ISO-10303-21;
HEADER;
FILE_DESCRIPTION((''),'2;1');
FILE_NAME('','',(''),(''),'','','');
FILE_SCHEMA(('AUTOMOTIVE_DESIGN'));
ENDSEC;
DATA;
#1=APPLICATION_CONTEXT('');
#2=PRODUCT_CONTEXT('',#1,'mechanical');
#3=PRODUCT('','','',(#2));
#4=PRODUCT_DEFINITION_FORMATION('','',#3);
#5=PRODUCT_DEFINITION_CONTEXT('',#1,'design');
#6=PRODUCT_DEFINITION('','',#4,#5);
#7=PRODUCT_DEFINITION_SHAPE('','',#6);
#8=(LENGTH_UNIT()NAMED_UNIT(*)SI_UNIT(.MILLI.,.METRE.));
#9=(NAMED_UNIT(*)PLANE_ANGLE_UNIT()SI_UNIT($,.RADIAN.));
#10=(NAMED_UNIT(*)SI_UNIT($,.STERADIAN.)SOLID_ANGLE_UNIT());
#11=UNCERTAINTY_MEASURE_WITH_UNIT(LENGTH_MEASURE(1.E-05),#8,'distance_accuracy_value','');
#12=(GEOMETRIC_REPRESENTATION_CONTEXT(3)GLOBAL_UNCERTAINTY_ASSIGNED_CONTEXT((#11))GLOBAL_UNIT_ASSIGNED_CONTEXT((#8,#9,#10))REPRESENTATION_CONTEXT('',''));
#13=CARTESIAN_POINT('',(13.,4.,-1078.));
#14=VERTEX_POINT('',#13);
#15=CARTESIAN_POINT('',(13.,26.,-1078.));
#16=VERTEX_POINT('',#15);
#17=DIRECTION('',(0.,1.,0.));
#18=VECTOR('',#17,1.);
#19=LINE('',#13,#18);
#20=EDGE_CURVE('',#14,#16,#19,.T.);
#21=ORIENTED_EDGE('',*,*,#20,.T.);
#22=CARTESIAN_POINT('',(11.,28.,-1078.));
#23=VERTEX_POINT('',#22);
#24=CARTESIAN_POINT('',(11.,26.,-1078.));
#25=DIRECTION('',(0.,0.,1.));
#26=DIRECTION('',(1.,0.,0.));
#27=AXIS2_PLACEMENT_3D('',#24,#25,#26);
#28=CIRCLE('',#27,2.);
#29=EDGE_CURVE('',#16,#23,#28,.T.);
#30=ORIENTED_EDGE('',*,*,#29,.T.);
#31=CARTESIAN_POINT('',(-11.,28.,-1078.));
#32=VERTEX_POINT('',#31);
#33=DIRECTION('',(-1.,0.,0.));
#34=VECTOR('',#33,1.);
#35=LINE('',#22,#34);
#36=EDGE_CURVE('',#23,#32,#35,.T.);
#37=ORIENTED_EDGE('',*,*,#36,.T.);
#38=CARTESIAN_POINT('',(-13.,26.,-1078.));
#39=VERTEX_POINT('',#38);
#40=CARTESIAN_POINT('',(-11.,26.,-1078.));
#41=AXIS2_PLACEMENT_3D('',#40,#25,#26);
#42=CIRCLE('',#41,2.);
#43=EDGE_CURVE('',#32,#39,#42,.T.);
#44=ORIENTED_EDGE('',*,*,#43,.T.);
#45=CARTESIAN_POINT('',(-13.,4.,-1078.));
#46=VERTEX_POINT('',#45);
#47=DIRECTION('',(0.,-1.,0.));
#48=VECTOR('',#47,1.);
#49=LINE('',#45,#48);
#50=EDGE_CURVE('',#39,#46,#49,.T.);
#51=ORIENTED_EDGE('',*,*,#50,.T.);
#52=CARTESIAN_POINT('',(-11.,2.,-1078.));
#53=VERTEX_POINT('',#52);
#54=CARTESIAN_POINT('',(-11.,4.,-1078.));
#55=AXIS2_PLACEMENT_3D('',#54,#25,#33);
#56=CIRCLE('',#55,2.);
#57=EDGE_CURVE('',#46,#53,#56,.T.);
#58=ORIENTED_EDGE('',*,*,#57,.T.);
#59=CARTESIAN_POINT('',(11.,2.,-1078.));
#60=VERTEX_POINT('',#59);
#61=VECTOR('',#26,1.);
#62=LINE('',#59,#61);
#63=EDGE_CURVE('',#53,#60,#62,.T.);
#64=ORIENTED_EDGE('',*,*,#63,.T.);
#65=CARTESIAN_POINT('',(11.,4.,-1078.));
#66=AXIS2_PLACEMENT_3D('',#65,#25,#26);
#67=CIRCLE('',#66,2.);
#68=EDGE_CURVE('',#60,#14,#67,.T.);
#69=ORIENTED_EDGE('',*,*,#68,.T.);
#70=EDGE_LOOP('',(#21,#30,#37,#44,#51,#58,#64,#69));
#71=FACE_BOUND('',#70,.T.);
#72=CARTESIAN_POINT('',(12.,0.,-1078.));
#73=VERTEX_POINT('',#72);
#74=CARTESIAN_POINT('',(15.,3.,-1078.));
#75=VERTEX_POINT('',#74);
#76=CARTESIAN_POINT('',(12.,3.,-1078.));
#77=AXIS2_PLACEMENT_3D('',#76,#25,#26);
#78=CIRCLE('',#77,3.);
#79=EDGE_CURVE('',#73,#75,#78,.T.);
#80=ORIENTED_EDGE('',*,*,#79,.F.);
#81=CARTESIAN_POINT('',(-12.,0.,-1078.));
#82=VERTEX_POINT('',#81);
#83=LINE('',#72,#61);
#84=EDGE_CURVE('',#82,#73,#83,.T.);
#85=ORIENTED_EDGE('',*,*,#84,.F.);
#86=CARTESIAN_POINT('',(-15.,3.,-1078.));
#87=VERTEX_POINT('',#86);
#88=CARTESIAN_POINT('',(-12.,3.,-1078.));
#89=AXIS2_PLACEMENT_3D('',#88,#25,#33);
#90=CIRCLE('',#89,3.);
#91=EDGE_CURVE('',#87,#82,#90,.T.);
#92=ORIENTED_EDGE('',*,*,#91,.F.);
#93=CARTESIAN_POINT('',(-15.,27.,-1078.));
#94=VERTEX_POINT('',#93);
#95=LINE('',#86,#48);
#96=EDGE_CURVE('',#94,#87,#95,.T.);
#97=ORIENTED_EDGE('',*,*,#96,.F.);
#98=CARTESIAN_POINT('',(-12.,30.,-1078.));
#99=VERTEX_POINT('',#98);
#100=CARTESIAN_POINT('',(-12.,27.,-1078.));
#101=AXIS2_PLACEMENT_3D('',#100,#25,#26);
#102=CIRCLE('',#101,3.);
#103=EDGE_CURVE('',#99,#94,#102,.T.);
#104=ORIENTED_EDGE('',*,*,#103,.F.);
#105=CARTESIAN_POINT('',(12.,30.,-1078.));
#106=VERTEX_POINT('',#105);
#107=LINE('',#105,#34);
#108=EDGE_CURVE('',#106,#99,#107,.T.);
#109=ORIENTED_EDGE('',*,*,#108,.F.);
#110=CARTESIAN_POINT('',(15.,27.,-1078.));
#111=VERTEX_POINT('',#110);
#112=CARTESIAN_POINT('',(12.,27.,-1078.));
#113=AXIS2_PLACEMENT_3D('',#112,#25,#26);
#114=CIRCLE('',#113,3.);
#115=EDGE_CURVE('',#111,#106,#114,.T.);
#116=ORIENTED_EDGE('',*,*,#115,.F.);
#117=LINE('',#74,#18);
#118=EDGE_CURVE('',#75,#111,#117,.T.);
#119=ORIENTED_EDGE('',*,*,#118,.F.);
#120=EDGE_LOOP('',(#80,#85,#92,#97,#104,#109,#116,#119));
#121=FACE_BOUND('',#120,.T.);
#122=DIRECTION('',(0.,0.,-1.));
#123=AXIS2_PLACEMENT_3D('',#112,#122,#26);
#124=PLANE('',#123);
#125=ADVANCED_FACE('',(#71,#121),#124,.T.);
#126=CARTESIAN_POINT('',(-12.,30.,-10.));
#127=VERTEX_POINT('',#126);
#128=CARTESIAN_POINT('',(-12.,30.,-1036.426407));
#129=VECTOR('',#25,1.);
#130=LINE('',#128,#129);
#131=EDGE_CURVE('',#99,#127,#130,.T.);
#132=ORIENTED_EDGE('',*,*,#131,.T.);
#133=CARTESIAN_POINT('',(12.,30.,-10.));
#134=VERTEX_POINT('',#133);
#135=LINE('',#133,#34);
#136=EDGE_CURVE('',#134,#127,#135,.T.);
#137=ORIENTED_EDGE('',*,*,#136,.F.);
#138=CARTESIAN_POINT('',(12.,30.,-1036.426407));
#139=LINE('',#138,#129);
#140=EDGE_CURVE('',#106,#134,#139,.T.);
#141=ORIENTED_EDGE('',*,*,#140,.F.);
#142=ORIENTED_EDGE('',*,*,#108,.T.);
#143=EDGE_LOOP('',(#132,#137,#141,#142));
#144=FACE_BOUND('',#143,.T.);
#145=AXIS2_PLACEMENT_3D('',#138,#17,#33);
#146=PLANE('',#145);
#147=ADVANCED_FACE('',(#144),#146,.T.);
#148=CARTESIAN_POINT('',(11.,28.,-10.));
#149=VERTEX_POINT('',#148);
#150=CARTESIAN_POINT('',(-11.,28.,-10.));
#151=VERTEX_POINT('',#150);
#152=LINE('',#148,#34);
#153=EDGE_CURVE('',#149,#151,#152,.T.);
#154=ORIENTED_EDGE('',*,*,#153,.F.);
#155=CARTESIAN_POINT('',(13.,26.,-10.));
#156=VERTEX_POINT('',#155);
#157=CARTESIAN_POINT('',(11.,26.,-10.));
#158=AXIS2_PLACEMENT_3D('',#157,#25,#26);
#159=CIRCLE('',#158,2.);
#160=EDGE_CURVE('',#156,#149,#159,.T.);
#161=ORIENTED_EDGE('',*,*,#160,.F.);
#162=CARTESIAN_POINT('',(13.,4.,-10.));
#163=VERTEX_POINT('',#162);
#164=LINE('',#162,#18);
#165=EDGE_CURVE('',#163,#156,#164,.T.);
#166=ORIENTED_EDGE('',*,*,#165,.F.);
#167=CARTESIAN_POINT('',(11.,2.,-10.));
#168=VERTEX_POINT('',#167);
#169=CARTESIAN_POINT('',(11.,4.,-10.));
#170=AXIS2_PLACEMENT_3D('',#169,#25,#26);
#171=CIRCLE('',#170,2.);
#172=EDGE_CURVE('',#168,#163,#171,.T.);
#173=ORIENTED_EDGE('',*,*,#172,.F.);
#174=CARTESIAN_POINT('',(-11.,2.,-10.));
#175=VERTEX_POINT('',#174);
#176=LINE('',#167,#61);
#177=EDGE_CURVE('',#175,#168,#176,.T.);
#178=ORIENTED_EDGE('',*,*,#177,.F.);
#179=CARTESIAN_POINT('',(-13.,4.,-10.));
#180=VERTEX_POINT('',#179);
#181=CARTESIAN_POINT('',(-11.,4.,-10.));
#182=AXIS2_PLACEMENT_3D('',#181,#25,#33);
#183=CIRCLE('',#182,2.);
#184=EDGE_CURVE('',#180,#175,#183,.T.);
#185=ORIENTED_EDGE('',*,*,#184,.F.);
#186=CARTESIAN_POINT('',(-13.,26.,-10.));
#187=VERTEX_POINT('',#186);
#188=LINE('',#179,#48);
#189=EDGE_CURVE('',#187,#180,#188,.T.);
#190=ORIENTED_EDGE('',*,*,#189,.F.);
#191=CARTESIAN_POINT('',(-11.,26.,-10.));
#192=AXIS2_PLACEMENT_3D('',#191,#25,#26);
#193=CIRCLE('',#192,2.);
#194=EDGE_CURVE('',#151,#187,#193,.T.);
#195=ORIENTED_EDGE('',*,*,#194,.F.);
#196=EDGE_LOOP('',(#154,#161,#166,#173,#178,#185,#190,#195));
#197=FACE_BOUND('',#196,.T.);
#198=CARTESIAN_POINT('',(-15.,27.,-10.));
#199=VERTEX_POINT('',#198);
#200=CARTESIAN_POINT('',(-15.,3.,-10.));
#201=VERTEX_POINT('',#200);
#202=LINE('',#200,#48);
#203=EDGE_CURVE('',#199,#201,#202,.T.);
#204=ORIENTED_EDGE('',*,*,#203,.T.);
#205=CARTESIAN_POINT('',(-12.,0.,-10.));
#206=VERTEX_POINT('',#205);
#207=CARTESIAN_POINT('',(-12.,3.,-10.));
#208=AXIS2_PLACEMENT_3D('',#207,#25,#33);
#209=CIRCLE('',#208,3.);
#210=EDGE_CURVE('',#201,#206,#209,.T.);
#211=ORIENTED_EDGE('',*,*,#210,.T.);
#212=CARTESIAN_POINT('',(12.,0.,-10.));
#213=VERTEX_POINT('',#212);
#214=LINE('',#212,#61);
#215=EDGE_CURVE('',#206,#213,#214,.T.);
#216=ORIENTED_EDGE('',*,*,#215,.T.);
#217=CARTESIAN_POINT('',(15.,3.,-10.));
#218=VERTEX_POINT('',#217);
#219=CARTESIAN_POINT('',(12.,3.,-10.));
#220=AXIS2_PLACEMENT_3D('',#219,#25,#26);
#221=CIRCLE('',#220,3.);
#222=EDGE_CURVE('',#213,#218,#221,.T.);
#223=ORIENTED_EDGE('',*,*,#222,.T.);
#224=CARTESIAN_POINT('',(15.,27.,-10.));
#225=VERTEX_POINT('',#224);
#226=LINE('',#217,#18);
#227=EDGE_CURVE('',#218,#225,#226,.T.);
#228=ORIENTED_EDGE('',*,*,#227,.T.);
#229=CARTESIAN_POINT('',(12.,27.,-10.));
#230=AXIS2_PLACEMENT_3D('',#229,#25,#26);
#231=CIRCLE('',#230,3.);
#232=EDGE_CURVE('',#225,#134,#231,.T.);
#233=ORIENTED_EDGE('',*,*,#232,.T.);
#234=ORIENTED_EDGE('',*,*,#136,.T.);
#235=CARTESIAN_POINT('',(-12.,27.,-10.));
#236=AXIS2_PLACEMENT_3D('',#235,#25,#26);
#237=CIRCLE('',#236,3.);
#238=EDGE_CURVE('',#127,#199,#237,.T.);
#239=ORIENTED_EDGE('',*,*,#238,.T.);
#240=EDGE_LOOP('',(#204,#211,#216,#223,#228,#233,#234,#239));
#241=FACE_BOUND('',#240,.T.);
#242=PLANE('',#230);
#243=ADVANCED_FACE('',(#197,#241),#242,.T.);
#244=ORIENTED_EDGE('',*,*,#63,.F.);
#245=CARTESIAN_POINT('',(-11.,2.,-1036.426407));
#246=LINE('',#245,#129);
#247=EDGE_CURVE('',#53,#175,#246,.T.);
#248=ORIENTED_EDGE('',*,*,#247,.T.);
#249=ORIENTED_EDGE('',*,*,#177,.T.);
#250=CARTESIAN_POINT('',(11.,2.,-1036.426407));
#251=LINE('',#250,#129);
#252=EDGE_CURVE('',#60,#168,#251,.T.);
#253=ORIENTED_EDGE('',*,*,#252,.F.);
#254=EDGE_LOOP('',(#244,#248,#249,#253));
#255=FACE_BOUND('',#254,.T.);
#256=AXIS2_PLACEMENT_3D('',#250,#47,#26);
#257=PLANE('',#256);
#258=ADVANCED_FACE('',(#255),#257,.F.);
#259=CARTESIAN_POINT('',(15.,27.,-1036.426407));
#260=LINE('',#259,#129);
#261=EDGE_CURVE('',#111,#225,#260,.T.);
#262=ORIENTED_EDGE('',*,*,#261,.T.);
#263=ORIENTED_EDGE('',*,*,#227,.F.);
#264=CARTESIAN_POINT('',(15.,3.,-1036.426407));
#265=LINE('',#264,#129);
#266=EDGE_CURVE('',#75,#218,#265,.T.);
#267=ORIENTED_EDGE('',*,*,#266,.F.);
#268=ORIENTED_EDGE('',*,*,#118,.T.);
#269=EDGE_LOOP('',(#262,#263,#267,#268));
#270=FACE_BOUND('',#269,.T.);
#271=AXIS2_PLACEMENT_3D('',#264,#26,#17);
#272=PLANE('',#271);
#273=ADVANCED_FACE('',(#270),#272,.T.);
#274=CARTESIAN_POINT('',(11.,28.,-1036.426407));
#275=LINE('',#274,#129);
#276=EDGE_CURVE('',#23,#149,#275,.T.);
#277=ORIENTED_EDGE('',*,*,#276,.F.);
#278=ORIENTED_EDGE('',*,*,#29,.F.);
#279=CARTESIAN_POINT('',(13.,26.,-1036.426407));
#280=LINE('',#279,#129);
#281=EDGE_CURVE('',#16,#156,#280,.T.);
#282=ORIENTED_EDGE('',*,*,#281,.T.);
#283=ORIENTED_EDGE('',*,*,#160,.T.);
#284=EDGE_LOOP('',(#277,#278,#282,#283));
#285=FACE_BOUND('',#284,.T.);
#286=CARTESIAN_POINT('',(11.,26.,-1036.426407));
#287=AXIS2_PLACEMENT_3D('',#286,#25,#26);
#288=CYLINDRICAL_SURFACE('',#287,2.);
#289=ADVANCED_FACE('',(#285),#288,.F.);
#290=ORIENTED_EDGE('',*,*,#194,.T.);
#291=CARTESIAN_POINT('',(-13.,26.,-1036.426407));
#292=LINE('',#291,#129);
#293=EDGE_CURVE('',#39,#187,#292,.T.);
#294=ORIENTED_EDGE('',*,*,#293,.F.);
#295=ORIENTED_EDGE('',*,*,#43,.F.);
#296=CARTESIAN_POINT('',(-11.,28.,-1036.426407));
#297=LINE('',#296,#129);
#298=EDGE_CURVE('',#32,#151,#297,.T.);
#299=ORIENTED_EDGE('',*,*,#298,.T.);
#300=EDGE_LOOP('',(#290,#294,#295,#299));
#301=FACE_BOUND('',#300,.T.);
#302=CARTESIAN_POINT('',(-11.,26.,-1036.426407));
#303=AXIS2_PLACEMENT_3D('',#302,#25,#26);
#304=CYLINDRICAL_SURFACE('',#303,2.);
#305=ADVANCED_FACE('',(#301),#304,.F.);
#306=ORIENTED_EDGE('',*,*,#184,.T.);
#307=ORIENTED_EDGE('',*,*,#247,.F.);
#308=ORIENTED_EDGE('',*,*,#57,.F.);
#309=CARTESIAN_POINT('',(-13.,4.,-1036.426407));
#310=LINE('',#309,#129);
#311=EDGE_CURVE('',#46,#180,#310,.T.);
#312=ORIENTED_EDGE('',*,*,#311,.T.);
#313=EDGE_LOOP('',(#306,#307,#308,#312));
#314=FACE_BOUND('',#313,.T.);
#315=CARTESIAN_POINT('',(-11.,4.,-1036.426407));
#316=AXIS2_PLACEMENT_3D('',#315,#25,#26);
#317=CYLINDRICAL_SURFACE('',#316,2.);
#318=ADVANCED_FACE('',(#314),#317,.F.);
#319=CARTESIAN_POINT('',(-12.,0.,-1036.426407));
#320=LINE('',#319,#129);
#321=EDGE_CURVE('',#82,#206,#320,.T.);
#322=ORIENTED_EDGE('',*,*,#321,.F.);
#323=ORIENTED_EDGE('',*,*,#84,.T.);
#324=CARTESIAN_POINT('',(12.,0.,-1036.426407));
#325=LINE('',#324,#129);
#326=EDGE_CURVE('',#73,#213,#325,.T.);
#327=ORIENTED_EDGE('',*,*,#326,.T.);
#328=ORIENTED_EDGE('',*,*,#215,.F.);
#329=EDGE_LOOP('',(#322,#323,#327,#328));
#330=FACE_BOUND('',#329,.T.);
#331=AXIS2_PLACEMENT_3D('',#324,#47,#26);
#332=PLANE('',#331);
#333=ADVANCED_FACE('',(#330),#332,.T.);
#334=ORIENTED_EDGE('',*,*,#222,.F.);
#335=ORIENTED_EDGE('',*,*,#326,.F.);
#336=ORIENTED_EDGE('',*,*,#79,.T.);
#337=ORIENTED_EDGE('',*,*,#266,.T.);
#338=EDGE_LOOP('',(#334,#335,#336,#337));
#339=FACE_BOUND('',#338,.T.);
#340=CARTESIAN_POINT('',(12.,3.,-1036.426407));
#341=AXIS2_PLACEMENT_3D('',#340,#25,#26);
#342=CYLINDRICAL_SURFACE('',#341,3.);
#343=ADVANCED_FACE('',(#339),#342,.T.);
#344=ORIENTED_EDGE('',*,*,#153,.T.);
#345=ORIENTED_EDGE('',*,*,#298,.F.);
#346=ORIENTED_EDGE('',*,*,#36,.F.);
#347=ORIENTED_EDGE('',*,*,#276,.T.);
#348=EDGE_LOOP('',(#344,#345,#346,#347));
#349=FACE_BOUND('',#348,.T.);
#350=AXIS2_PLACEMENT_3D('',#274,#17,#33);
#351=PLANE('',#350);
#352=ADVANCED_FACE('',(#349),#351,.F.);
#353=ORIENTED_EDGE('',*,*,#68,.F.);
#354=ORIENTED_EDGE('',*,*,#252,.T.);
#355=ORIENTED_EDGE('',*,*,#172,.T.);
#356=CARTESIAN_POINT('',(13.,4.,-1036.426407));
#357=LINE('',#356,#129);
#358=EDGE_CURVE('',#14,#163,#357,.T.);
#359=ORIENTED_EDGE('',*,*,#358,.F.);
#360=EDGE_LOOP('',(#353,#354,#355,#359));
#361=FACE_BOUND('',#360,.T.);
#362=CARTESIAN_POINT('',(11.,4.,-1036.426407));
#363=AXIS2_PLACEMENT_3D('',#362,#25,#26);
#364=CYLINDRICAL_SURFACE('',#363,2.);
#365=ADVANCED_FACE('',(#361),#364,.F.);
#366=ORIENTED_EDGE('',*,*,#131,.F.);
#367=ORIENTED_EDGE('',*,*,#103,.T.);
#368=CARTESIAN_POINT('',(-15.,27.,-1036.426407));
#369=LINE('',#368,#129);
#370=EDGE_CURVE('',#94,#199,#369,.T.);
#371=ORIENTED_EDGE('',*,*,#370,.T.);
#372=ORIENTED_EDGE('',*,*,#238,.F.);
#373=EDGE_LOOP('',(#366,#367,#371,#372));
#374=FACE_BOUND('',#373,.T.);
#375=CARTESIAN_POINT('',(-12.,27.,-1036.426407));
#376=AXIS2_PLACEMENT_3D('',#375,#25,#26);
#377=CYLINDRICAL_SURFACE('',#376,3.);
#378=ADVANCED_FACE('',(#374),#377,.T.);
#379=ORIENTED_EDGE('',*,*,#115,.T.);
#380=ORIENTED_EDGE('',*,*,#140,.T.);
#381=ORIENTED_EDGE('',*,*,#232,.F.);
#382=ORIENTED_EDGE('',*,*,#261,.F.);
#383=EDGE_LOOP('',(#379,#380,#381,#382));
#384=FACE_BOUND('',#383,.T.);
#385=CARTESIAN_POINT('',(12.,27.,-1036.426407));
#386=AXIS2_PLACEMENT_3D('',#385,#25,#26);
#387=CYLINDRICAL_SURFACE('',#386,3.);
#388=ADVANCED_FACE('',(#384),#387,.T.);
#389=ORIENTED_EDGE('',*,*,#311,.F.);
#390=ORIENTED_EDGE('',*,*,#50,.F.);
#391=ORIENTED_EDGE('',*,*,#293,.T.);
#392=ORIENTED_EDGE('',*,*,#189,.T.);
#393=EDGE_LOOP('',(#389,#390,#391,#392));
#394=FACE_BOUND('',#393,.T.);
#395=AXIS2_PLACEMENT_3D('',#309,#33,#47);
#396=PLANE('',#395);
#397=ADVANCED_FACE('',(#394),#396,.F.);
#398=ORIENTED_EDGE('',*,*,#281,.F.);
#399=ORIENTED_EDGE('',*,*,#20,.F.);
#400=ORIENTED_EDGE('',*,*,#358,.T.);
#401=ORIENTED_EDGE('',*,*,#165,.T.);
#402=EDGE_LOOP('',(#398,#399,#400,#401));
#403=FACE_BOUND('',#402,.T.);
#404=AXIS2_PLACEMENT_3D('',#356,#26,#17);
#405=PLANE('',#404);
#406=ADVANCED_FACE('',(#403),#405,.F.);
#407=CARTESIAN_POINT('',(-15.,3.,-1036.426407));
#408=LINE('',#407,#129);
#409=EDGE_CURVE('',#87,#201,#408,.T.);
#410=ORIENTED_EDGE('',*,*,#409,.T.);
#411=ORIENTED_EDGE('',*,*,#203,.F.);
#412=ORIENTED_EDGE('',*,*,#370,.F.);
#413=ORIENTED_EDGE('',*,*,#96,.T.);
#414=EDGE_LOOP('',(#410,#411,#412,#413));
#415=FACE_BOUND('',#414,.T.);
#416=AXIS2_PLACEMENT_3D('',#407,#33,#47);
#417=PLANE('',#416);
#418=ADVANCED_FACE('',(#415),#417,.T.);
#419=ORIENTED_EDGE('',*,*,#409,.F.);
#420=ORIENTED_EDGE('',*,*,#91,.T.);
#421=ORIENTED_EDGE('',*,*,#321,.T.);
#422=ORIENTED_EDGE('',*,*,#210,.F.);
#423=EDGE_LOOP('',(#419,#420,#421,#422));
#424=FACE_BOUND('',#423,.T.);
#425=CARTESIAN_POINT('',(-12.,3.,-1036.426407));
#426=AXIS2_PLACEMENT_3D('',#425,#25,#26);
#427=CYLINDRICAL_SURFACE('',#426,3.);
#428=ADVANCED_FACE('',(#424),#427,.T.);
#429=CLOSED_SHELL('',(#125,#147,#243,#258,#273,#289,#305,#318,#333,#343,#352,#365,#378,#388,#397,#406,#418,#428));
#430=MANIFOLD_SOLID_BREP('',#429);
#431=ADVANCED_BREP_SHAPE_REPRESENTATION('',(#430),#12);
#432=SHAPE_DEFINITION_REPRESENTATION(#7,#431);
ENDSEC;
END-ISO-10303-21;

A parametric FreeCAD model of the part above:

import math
import FreeCAD as App
import Part
import Sketcher
from FreeCAD import Vector
Q = App.Units.Quantity

doc = App.newDocument("Part")
body = doc.addObject("PartDesign::Body", "Body")

# Sketch on XY plane
sketch1 = body.newObject("Sketcher::SketchObject", "Sketch")
sketch1.AttachmentSupport = (doc.getObject("XY_Plane"), [""])
sketch1.MapMode = "FlatFace"
sketch1.AttachmentOffset = App.Placement(Vector(0, 0, -10), App.Rotation())
sketch1.addGeometry([
    Part.LineSegment(Vector(-12, 0, 0), Vector(12, 0, 0)),  # 0
    Part.ArcOfCircle(Part.Circle(Vector(12, 3, 0), Vector(0, 0, 1), 3), math.radians(-90), math.radians(0)),  # 1
    Part.LineSegment(Vector(15, 3, 0), Vector(15, 27, 0)),  # 2
    Part.ArcOfCircle(Part.Circle(Vector(12, 27, 0), Vector(0, 0, 1), 3), math.radians(0), math.radians(90)),  # 3
    Part.LineSegment(Vector(12, 30, 0), Vector(-12, 30, 0)),  # 4
    Part.ArcOfCircle(Part.Circle(Vector(-12, 27, 0), Vector(0, 0, 1), 3), math.radians(90), math.radians(180)),  # 5
    Part.LineSegment(Vector(-15, 27, 0), Vector(-15, 3, 0)),  # 6
    Part.ArcOfCircle(Part.Circle(Vector(-12, 3, 0), Vector(0, 0, 1), 3), math.radians(180), math.radians(270)),  # 7
    Part.LineSegment(Vector(11, 2, 0), Vector(-11, 2, 0)),  # 8
    Part.ArcOfCircle(Part.Circle(Vector(-11, 4, 0), Vector(0, 0, 1), 2), math.radians(-180), math.radians(-90)),  # 9
    Part.LineSegment(Vector(-13, 4, 0), Vector(-13, 26, 0)),  # 10
    Part.ArcOfCircle(Part.Circle(Vector(-11, 26, 0), Vector(0, 0, 1), 2), math.radians(90), math.radians(180)),  # 11
    Part.LineSegment(Vector(-11, 28, 0), Vector(11, 28, 0)),  # 12
    Part.ArcOfCircle(Part.Circle(Vector(11, 26, 0), Vector(0, 0, 1), 2), math.radians(0), math.radians(90)),  # 13
    Part.LineSegment(Vector(13, 26, 0), Vector(13, 4, 0)),  # 14
    Part.ArcOfCircle(Part.Circle(Vector(11, 4, 0), Vector(0, 0, 1), 2), math.radians(-90), math.radians(0)),  # 15
], False)
sketch1.addConstraint([
    Sketcher.Constraint("Tangent", 0, 2, 1, 1),
    Sketcher.Constraint("Tangent", 1, 2, 2, 1),
    Sketcher.Constraint("Tangent", 2, 2, 3, 1),
    Sketcher.Constraint("Tangent", 3, 2, 4, 1),
    Sketcher.Constraint("Tangent", 4, 2, 5, 1),
    Sketcher.Constraint("Tangent", 5, 2, 6, 1),
    Sketcher.Constraint("Tangent", 6, 2, 7, 1),
    Sketcher.Constraint("Tangent", 7, 2, 0, 1),
    Sketcher.Constraint("Tangent", 8, 2, 9, 2),
    Sketcher.Constraint("Tangent", 9, 1, 10, 1),
    Sketcher.Constraint("Tangent", 10, 2, 11, 2),
    Sketcher.Constraint("Tangent", 11, 1, 12, 1),
    Sketcher.Constraint("Tangent", 12, 2, 13, 2),
    Sketcher.Constraint("Tangent", 13, 1, 14, 1),
    Sketcher.Constraint("Tangent", 14, 2, 15, 2),
    Sketcher.Constraint("Tangent", 15, 1, 8, 1),
    Sketcher.Constraint("Horizontal", 0),
    Sketcher.Constraint("Vertical", 2),
    Sketcher.Constraint("Horizontal", 4),
    Sketcher.Constraint("Vertical", 6),
    Sketcher.Constraint("Horizontal", 8),
    Sketcher.Constraint("Vertical", 10),
    Sketcher.Constraint("Horizontal", 12),
    Sketcher.Constraint("Vertical", 14),
    Sketcher.Constraint("Equal", 1, 3),
    Sketcher.Constraint("Equal", 3, 5),
    Sketcher.Constraint("Equal", 5, 7),
    Sketcher.Constraint("Equal", 9, 11),
    Sketcher.Constraint("Equal", 11, 13),
    Sketcher.Constraint("Equal", 13, 15),
    Sketcher.Constraint("Symmetric", 0, 2, 7, 2, -1, 1),
    Sketcher.Constraint("Equal", 4, 2),
    Sketcher.Constraint("Equal", 12, 10),
    Sketcher.Constraint("Radius", 1, Q("3 mm")),
    Sketcher.Constraint("Radius", 9, Q("2 mm")),
    Sketcher.Constraint("DistanceX", 0, 1, 0, 2, Q("24 mm")),
    Sketcher.Constraint("DistanceX", 8, 2, 8, 1, Q("22 mm")),
    Sketcher.Constraint("DistanceX", 9, 3, -1, 1, Q("11 mm")),
    Sketcher.Constraint("DistanceY", -1, 1, 9, 3, Q("4 mm")),
])
pad1 = body.newObject("PartDesign::Pad", "Pad")
pad1.Profile = sketch1
pad1.Length = 534
pad1.Reversed = True
body2 = doc.addObject("PartDesign::Body", "Body001")
doc.recompute()

body2.BaseFeature = body
doc.recompute()

mirroring = doc.addObject("Part::Mirroring", "Mirroring")
mirroring.Source = body
mirroring.Base = Vector(695.566765, 158.190477, -544)
mirroring.Normal = Vector(0, 0, 1)
body3 = doc.addObject("PartDesign::Body", "Body002")
body3.BaseFeature = mirroring
boolean = body2.newObject("PartDesign::Boolean", "Boolean")
boolean.Type = "Fuse"
boolean.addObjects([body3])
doc.recompute()
mirroring.Visibility = False

doc.recompute()
